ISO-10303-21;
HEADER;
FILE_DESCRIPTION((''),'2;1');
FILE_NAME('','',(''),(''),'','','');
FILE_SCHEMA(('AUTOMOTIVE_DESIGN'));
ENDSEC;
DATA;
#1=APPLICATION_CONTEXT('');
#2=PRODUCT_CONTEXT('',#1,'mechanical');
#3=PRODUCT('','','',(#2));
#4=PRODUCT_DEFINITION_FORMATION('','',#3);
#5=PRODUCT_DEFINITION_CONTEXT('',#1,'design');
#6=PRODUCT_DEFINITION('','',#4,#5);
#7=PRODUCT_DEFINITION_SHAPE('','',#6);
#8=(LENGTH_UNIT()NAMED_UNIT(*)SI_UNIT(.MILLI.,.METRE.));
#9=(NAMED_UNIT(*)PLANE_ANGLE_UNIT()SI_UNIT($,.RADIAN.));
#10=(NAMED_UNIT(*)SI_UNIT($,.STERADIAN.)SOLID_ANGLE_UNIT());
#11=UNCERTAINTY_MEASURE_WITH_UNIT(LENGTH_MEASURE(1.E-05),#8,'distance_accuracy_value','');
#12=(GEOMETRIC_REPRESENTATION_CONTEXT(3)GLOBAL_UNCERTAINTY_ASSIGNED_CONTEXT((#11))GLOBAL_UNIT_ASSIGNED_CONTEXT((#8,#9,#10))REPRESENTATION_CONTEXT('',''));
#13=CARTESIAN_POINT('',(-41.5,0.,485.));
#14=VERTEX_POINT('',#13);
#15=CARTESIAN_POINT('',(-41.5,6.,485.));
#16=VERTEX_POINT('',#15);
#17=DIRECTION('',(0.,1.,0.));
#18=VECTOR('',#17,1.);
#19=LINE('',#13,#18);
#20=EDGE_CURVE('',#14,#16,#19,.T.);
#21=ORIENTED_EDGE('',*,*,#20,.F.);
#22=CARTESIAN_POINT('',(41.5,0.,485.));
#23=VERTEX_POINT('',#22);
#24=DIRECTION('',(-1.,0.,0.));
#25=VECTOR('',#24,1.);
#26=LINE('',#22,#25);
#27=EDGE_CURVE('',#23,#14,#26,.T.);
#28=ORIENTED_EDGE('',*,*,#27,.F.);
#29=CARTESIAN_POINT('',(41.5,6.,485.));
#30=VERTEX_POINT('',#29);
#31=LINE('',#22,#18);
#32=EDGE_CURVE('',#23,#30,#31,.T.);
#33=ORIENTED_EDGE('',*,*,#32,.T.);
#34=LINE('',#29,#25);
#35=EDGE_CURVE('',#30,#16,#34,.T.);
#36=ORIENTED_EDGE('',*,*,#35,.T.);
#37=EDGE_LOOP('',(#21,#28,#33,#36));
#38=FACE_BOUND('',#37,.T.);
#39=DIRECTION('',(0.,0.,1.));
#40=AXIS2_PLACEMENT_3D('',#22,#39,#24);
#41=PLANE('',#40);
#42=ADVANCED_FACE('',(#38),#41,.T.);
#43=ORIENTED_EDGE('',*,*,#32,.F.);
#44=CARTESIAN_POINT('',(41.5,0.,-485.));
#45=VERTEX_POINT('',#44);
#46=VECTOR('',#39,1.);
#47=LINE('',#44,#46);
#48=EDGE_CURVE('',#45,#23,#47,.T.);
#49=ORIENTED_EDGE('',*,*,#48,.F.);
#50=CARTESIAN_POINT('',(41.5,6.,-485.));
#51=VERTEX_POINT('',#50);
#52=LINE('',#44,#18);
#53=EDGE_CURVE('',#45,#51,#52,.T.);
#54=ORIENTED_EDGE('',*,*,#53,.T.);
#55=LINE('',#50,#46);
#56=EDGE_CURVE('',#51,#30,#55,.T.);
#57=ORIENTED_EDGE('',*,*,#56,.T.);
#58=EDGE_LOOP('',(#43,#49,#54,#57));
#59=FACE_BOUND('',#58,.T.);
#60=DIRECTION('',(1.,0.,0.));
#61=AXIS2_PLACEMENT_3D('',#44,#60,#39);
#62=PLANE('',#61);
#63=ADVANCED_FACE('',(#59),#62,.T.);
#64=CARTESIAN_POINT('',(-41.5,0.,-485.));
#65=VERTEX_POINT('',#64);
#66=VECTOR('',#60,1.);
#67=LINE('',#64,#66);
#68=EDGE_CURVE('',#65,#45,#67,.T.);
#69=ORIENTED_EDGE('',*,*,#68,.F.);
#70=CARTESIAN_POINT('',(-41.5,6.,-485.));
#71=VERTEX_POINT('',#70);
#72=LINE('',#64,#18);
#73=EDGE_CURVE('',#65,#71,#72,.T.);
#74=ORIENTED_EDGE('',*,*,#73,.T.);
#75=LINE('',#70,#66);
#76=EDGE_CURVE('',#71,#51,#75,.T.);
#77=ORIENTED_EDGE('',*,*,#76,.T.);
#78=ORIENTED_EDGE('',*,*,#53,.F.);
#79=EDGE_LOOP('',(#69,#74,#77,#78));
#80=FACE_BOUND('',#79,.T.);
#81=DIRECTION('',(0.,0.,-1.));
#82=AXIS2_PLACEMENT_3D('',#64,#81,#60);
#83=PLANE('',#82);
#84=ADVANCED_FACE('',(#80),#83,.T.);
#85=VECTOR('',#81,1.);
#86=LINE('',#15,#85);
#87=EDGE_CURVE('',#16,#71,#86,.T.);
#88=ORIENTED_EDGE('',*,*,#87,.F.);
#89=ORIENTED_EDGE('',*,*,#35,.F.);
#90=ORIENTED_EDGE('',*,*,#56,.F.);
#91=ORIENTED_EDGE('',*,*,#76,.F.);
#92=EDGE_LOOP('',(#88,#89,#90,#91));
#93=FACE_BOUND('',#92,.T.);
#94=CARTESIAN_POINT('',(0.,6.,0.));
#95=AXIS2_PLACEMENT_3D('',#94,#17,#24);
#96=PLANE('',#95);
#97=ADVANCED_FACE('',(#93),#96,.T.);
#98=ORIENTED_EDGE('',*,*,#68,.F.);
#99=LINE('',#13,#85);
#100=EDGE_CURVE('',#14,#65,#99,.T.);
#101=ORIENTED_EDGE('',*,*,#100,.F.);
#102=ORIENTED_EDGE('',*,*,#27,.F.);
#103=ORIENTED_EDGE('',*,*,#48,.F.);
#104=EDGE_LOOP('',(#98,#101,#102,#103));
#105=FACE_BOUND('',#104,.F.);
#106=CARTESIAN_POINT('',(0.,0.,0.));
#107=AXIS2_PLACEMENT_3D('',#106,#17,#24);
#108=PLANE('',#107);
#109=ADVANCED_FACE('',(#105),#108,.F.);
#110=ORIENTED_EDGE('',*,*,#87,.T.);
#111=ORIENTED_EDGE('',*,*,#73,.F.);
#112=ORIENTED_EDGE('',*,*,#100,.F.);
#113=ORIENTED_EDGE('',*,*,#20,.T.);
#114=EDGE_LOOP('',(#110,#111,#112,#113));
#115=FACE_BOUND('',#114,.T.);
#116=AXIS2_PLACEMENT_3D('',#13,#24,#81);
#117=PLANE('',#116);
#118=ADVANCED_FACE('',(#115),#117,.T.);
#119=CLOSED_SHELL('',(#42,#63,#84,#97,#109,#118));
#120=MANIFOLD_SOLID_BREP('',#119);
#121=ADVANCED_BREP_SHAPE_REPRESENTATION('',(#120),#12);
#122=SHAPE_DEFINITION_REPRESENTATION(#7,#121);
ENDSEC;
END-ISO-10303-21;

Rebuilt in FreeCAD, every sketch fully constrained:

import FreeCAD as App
import Part
import Sketcher
from FreeCAD import Vector
Q = App.Units.Quantity


def add_polygon(sketch, points):
    """Adds a closed chain of lines whose ends are joined by coincident constraints."""
    first, n = sketch.GeometryCount, len(points)
    for a, b in zip(points, points[1:] + points[:1]):
        sketch.addGeometry(Part.LineSegment(App.Vector(*a, 0), App.Vector(*b, 0)), False)
    for i in range(n):
        sketch.addConstraint(Sketcher.Constraint("Coincident", first + i, 2, first + (i + 1) % n, 1))

doc = App.newDocument("Part")
body = doc.addObject("PartDesign::Body", "Body")

sketch1 = body.newObject("Sketcher::SketchObject", "Sketch")
sketch1.AttachmentSupport = (doc.getObject("XZ_Plane"), [""])
sketch1.MapMode = "FlatFace"
add_polygon(sketch1, [(-42, 485), (42, 485), (42, -485), (-42, -485)])
sketch1.addConstraint([
    Sketcher.Constraint("Horizontal", 0),
    Sketcher.Constraint("Vertical", 1),
    Sketcher.Constraint("Horizontal", 2),
    Sketcher.Constraint("Vertical", 3),
    Sketcher.Constraint("Symmetric", 0, 2, 2, 2, -1, 1),
    Sketcher.Constraint("DistanceX", 0, 1, 0, 2, Q("83 mm")),
    Sketcher.Constraint("DistanceY", 1, 2, 1, 1, Q("970 mm")),
])
pad1 = body.newObject("PartDesign::Pad", "Pad")
pad1.Profile = sketch1
pad1.Length = 6
pad1.Reversed = True

doc.recompute()
